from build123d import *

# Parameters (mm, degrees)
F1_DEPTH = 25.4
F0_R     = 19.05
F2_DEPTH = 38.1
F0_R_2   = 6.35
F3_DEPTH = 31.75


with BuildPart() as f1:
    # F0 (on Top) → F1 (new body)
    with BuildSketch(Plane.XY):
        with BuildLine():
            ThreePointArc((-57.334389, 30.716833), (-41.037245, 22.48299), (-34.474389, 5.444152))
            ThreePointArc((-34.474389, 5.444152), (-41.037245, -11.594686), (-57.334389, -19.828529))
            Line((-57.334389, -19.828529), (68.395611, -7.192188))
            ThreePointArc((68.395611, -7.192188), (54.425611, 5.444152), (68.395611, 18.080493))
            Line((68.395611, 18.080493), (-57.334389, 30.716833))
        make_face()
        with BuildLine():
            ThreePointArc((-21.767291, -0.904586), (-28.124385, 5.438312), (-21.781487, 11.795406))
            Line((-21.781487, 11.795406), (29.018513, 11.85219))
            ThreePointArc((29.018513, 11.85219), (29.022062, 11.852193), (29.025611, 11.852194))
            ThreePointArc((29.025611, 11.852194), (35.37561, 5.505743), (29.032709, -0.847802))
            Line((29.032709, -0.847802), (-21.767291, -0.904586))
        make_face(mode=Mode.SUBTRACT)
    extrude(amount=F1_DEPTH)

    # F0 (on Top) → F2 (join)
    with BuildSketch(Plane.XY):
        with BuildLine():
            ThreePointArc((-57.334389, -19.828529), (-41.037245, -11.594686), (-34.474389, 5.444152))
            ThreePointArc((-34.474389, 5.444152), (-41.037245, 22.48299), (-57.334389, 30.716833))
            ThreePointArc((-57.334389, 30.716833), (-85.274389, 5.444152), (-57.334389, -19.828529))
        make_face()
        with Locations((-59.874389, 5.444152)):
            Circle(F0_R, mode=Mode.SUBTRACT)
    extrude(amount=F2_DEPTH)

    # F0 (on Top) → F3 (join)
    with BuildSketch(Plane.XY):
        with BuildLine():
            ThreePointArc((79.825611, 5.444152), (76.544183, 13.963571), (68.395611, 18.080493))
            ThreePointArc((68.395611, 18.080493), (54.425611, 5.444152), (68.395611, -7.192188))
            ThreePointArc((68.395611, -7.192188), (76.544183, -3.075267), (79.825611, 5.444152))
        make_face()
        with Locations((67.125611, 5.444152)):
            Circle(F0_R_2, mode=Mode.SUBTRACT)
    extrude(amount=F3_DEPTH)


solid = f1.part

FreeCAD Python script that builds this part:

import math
import FreeCAD as App
import Part
import Sketcher

V = App.Vector
Q = App.Units.Quantity

doc = App.newDocument("Part")
body = doc.addObject("PartDesign::Body", "Body")

# Sketch on XY plane
sketch1 = body.newObject("Sketcher::SketchObject", "Sketch")
sketch1.AttachmentSupport = (doc.getObject("XY_Plane"), [""])
sketch1.MapMode = "FlatFace"
sketch1.addGeometry([
    Part.ArcOfCircle(Part.Circle(V(-59.874389, 5.444152, 0), V(0, 0, 1), 25.400001), math.radians(0.000001), math.radians(84.260829)),  # 0
    Part.ArcOfCircle(Part.Circle(V(-59.874389, 5.444152, 0), V(0, 0, 1), 25.400001), math.radians(-84.260829), math.radians(-0.000001)),  # 1
    Part.LineSegment(V(-57.334389, -19.828529, 0), V(68.395611, -7.192188, 0)),  # 2
    Part.ArcOfCircle(Part.Circle(V(67.125611, 5.444153, 0), V(0, 0, 1), 12.7), math.radians(84.26083), math.radians(275.73917)),  # 3
    Part.LineSegment(V(68.395611, 18.080493, 0), V(-57.334389, 30.716833, 0)),  # 4
    Part.LineSegment(V(29.032709, -0.847802, 0), V(-21.767291, -0.904586, 0)),  # 5
    Part.ArcOfCircle(Part.Circle(V(-21.774389, 5.44541, 0), V(0, 0, 1), 6.35), math.radians(90.064045), math.radians(270.064045)),  # 6
    Part.LineSegment(V(-21.781487, 11.795406, 0), V(29.018513, 11.85219, 0)),  # 7
    Part.ArcOfCircle(Part.Circle(V(29.025611, 5.55449, 0), V(0, 0, 1), 6.297704), math.radians(90), math.radians(90.064577)),  # 8
    Part.ArcOfCircle(Part.Circle(V(29.025611, 5.502194, 0), V(0, 0, 1), 6.35), math.radians(-89.935955), math.radians(90)),  # 9
], False)
sketch1.addConstraint([
    Sketcher.Constraint("Tangent", 0, 1, 1, 2),
    Sketcher.Constraint("Tangent", 1, 1, 2, 1),
    Sketcher.Constraint("Tangent", 2, 2, 3, 2),
    Sketcher.Constraint("Tangent", 3, 1, 4, 1),
    Sketcher.Constraint("Tangent", 4, 2, 0, 2),
    Sketcher.Constraint("Tangent", 5, 2, 6, 2),
    Sketcher.Constraint("Tangent", 6, 1, 7, 1),
    Sketcher.Constraint("Coincident", 7, 2, 8, 2),
    Sketcher.Constraint("Tangent", 8, 1, 9, 2),
    Sketcher.Constraint("Tangent", 9, 1, 5, 1),
    Sketcher.Constraint("Equal", 0, 1),
    Sketcher.Constraint("Equal", 6, 9),
    Sketcher.Constraint("Horizontal", 1, 3, 3, 3),
    Sketcher.Constraint("Horizontal", 3, 3, 0, 1),
    Sketcher.Constraint("Vertical", 8, 3, 9, 3),
    Sketcher.Constraint("Equal", 5, 7),
    Sketcher.Constraint("Radius", 0, Q("1 in")),
    Sketcher.Constraint("Radius", 3, Q("0.5 in")),
    Sketcher.Constraint("Radius", 6, Q("0.25 in")),
    Sketcher.Constraint("DistanceX", 0, 3, 3, 3, Q("5 in")),
    Sketcher.Constraint("DistanceX", 6, 3, 8, 3, Q("2 in")),
    Sketcher.Constraint("DistanceX", 1, 3, 6, 3, Q("1.5 in")),
    Sketcher.Constraint("Radius", 8, Q("6.297704 mm")),
    Sketcher.Constraint("DistanceY", 9, 3, 3, 1, Q("12.578299 mm")),
    Sketcher.Constraint("DistanceX", 0, 1, 5, 2, Q("12.707098 mm")),
    Sketcher.Constraint("DistanceX", 0, 3, -1, 1, Q("59.874389 mm")),
    Sketcher.Constraint("DistanceY", -1, 1, 0, 3, Q("5.444152 mm")),
])
pad1 = body.newObject("PartDesign::Pad", "Pad")
pad1.Profile = sketch1
pad1.Length = Q("1 in")

# Sketch on XY plane
sketch2 = body.newObject("Sketcher::SketchObject", "Sketch001")
sketch2.AttachmentSupport = (doc.getObject("XY_Plane"), [""])
sketch2.MapMode = "FlatFace"
sketch2.addGeometry([
    Part.ArcOfCircle(Part.Circle(V(-59.874389, 5.444152, 0), V(0, 0, 1), 25.400001), math.radians(-84.260829), math.radians(-0.000001)),
    Part.ArcOfCircle(Part.Circle(V(-59.874389, 5.444152, 0), V(0, 0, 1), 25.400001), math.radians(0.000001), math.radians(84.260829)),
    Part.ArcOfCircle(Part.Circle(V(-59.874389, 5.444152, 0), V(0, 0, 1), 25.4), math.radians(84.26083), math.radians(275.73917)),
    Part.Circle(V(-59.874389, 5.444152, 0), V(0, 0, 1), 19.05),
], False)
sketch2.addConstraint([
    Sketcher.Constraint("Tangent", 0, 2, 1, 1),
    Sketcher.Constraint("Tangent", 1, 2, 2, 1),
    Sketcher.Constraint("Tangent", 2, 2, 0, 1),
    Sketcher.Constraint("Coincident", 3, 3, 0, 3),
    Sketcher.Constraint("Horizontal", 3, 3, 0, 2),
    Sketcher.Constraint("Vertical", 1, 2, 2, 2),
    Sketcher.Constraint("Radius", 0, Q("1 in")),
    Sketcher.Constraint("Diameter", 3, Q("1.5 in")),
    Sketcher.Constraint("DistanceX", 0, 3, 1, 2, Q("0.1 in")),
    Sketcher.Constraint("DistanceX", 0, 3, -1, 1, Q("59.874389 mm")),
    Sketcher.Constraint("DistanceY", -1, 1, 1, 3, Q("5.444152 mm")),
])
pad2 = body.newObject("PartDesign::Pad", "Pad001")
pad2.Profile = sketch2
pad2.Length = Q("1.5 in")

# Sketch on XY plane
sketch3 = body.newObject("Sketcher::SketchObject", "Sketch002")
sketch3.AttachmentSupport = (doc.getObject("XY_Plane"), [""])
sketch3.MapMode = "FlatFace"
sketch3.addGeometry([
    Part.ArcOfCircle(Part.Circle(V(67.12561, 5.444151, 0), V(0, 0, 1), 12.700001), math.radians(0.000002), math.radians(84.260825)),
    Part.ArcOfCircle(Part.Circle(V(67.125611, 5.444153, 0), V(0, 0, 1), 12.7), math.radians(84.26083), math.radians(275.73917)),
    Part.ArcOfCircle(Part.Circle(V(67.125612, 5.444152, 0), V(0, 0, 1), 12.699999), math.radians(-84.260832), math.radians(0.000001)),
    Part.Circle(V(67.125611, 5.444152, 0), V(0, 0, 1), 6.35),
], False)
sketch3.addConstraint([
    Sketcher.Constraint("Tangent", 0, 2, 1, 1),
    Sketcher.Constraint("Tangent", 1, 2, 2, 1),
    Sketcher.Constraint("Tangent", 2, 2, 0, 1),
    Sketcher.Constraint("Coincident", 3, 3, 0, 3),
    Sketcher.Constraint("Horizontal", 3, 3, 2, 2),
    Sketcher.Constraint("Vertical", 0, 2, 1, 2),
    Sketcher.Constraint("Diameter", 3, Q("0.5 in")),
    Sketcher.Constraint("Radius", 0, Q("0.5 in")),
    Sketcher.Constraint("DistanceX", 1, 3, 0, 2, Q("0.05 in")),
    Sketcher.Constraint("DistanceX", -1, 1, 0, 3, Q("67.12561 mm")),
    Sketcher.Constraint("DistanceY", -1, 1, 0, 3, Q("5.444151 mm")),
])
pad3 = body.newObject("PartDesign::Pad", "Pad002")
pad3.Profile = sketch3
pad3.Length = Q("1.25 in")

doc.recompute()
